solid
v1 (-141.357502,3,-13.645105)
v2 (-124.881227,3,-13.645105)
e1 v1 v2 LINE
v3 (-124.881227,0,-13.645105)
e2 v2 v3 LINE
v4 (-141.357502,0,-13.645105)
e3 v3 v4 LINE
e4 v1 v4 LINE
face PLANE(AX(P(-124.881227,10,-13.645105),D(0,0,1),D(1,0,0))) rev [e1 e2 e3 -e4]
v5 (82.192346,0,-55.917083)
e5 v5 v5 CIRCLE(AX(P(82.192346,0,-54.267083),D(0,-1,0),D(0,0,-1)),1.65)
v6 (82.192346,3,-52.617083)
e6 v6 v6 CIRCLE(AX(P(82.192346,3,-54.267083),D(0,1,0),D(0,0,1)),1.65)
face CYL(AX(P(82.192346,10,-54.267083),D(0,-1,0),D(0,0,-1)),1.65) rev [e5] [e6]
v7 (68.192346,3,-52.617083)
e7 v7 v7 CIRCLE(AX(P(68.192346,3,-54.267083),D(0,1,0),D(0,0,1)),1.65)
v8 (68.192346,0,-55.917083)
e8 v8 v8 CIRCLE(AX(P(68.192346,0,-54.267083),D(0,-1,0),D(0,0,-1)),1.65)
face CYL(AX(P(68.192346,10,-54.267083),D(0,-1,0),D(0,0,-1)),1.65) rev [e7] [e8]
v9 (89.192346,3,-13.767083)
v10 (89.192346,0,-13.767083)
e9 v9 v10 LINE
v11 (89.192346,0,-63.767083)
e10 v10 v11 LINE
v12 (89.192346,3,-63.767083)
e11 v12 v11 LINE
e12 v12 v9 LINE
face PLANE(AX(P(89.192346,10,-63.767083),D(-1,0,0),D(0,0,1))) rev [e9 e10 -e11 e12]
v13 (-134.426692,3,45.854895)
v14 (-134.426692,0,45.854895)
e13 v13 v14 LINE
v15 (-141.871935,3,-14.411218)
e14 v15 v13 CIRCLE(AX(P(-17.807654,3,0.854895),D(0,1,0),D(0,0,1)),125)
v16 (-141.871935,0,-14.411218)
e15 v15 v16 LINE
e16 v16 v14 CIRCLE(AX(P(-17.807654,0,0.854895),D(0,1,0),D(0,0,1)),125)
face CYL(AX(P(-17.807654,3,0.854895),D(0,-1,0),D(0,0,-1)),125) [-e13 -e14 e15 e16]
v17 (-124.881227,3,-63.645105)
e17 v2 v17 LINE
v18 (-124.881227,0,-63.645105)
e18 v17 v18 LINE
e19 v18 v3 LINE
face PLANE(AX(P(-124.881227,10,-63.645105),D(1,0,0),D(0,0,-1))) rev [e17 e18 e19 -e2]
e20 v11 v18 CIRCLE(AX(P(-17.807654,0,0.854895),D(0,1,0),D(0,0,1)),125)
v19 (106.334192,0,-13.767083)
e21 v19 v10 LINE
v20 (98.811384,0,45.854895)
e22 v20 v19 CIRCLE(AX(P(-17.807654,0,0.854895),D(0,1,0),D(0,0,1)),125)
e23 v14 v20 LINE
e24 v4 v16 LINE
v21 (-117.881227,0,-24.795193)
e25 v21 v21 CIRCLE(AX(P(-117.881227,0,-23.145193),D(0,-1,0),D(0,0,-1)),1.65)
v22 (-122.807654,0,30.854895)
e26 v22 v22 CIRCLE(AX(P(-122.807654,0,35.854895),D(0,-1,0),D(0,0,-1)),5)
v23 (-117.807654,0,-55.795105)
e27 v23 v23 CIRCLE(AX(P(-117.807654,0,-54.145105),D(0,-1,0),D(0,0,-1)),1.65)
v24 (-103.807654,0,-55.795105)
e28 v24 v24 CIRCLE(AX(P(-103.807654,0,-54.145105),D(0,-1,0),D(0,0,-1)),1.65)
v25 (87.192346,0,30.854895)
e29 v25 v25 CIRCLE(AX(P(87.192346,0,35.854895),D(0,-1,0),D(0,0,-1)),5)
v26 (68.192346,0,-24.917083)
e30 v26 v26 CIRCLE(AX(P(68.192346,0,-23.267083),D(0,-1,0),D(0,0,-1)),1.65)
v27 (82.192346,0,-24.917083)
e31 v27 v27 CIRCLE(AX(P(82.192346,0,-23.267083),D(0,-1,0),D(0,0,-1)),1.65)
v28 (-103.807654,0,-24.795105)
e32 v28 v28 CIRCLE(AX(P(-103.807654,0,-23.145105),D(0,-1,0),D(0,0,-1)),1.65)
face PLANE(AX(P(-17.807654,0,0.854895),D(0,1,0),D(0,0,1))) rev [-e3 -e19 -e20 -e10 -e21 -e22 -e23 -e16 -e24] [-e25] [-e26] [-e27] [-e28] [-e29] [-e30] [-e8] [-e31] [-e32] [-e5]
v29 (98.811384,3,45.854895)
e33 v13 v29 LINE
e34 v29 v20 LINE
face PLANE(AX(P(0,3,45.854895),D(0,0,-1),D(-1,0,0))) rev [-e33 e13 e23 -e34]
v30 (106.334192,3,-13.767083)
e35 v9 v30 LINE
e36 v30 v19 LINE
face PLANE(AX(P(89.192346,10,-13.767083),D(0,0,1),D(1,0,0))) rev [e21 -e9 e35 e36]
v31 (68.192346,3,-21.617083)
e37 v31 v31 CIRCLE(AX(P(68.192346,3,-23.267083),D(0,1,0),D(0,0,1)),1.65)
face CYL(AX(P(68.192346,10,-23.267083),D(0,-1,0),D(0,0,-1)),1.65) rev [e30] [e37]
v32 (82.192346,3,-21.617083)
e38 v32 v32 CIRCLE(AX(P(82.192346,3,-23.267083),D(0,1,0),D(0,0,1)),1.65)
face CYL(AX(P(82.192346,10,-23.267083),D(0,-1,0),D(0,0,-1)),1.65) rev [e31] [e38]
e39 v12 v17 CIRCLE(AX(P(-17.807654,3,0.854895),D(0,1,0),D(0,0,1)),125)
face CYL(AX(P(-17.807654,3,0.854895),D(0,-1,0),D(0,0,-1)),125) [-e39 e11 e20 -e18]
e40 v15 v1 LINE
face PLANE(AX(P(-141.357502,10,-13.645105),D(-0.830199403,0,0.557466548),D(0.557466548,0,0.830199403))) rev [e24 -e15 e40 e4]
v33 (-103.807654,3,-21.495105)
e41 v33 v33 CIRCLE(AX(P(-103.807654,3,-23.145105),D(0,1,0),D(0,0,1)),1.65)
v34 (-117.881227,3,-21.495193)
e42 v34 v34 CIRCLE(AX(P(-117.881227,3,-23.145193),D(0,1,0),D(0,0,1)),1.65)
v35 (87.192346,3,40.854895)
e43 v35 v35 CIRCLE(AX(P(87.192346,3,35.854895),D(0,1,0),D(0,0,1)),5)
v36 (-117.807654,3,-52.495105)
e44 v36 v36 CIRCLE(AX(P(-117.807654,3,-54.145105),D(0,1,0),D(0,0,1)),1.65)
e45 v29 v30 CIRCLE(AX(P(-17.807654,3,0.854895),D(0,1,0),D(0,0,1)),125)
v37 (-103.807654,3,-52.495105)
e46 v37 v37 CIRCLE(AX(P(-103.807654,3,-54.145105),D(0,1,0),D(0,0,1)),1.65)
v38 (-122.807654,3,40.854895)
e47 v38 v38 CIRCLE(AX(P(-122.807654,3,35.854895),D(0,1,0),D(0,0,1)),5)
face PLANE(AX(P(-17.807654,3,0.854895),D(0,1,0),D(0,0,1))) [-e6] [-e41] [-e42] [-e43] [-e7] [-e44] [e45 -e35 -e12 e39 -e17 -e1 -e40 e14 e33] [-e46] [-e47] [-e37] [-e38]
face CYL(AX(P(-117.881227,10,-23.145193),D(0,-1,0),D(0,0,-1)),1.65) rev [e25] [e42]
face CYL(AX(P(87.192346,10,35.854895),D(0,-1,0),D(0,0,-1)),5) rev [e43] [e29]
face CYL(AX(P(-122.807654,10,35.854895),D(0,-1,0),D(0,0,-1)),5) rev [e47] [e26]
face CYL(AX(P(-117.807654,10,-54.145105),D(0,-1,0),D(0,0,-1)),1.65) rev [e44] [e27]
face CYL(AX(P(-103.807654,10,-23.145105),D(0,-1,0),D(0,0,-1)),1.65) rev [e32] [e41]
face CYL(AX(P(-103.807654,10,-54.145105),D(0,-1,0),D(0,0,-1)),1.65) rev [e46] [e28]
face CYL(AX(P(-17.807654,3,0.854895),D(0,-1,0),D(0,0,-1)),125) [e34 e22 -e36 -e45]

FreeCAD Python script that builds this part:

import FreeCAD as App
import Part
import Sketcher
from FreeCAD import Vector


def add_polygon(sketch, points):
    """Adds a closed chain of lines whose ends are joined by coincident constraints."""
    first, n = sketch.GeometryCount, len(points)
    for a, b in zip(points, points[1:] + points[:1]):
        sketch.addGeometry(Part.LineSegment(App.Vector(*a, 0), App.Vector(*b, 0)), False)
    for i in range(n):
        sketch.addConstraint(Sketcher.Constraint("Coincident", first + i, 2, first + (i + 1) % n, 1))

doc = App.newDocument("Part")
body = doc.addObject("PartDesign::Body", "Body")

# Sketch on XZ plane
sketch1 = doc.addObject("Sketcher::SketchObject", "Sketch")
body.addObject(sketch1)
sketch1.AttachmentSupport = (doc.XZ_Plane, [""])
sketch1.MapMode = "FlatFace"
sketch1.addGeometry(Part.Circle(Vector(-17.807654, 0.854895, 0), Vector(0, 0, 1), 125), False)
sketch1.addConstraint([
    Sketcher.Constraint("Diameter", 0, 250.0),
    Sketcher.Constraint("DistanceX", 0, 3, -1, 1, 17.807654),
    Sketcher.Constraint("DistanceY", -1, 1, 0, 3, 0.854895),
])
pad1 = doc.addObject("PartDesign::Pad", "Pad")
body.addObject(pad1)
pad1.Profile = sketch1
pad1.Length = 3
pad1.Reversed = True

# Sketch on XZ plane
sketch2 = doc.addObject("Sketcher::SketchObject", "Sketch001")
body.addObject(sketch2)
sketch2.AttachmentSupport = (doc.XZ_Plane, [""])
sketch2.MapMode = "FlatFace"
add_polygon(sketch2, [(-735.289652, 45.854895), (699.674345, 45.854895), (699.674345, 1247.580815), (-735.289652, 1247.580815)])  # lines 0-3
sketch2.addConstraint([
    Sketcher.Constraint("Horizontal", 0),
    Sketcher.Constraint("Vertical", 1),
    Sketcher.Constraint("Horizontal", 2),
    Sketcher.Constraint("Vertical", 3),
    Sketcher.Constraint("DistanceY", 1, 1, 1, 2, 1201.725921),
    Sketcher.Constraint("DistanceX", 0, 1, 0, 2, 1434.963996),
    Sketcher.Constraint("DistanceX", 2, 2, -1, 1, 735.289652),
    Sketcher.Constraint("DistanceY", -1, 1, 0, 2, 45.854895),
])
pocket1 = doc.addObject("PartDesign::Pocket", "Pocket")
body.addObject(pocket1)
pocket1.Profile = sketch2
pocket1.Length = 3

# Sketch on XZ plane
sketch3 = doc.addObject("Sketcher::SketchObject", "Sketch002")
body.addObject(sketch3)
sketch3.AttachmentSupport = (doc.XZ_Plane, [""])
sketch3.MapMode = "FlatFace"
sketch3.addGeometry(Part.Circle(Vector(-117.807654, -54.145105, 0), Vector(0, 0, 1), 1.65), False)  # 0
sketch3.addGeometry(Part.Circle(Vector(-117.881227, -23.145193, 0), Vector(0, 0, 1), 1.65), False)  # 1
sketch3.addGeometry(Part.Circle(Vector(-103.807654, -54.145105, 0), Vector(0, 0, 1), 1.65), False)  # 2
sketch3.addGeometry(Part.Circle(Vector(-103.807654, -23.145105, 0), Vector(0, 0, 1), 1.65), False)  # 3
sketch3.addGeometry(Part.Circle(Vector(68.192346, -54.267083, 0), Vector(0, 0, 1), 1.65), False)  # 4
sketch3.addGeometry(Part.Circle(Vector(82.192346, -54.267083, 0), Vector(0, 0, 1), 1.65), False)  # 5
sketch3.addGeometry(Part.Circle(Vector(82.192346, -23.267083, 0), Vector(0, 0, 1), 1.65), False)  # 6
sketch3.addGeometry(Part.Circle(Vector(68.192346, -23.267083, 0), Vector(0, 0, 1), 1.65), False)  # 7
sketch3.addGeometry(Part.Circle(Vector(-122.807654, 35.854895, 0), Vector(0, 0, 1), 5), False)  # 8
sketch3.addGeometry(Part.Circle(Vector(87.192346, 35.854895, 0), Vector(0, 0, 1), 5), False)  # 9
add_polygon(sketch3, [(-124.881227, -63.645105), (-124.881227, -13.645105), (-141.357502, -13.645105), (-159.377607, -40.481299)])  # lines 10-13
add_polygon(sketch3, [(89.192346, -13.767083), (89.192346, -63.767083), (114.079844, -54.596316), (106.334192, -13.767083)])  # lines 14-17
sketch3.addConstraint([
    Sketcher.Constraint("Vertical", 10),
    Sketcher.Constraint("Horizontal", 11),
    Sketcher.Constraint("Vertical", 14),
    Sketcher.Constraint("Horizontal", 17),
    Sketcher.Constraint("Equal", 0, 1),
    Sketcher.Constraint("Equal", 1, 2),
    Sketcher.Constraint("Equal", 2, 3),
    Sketcher.Constraint("Equal", 3, 4),
    Sketcher.Constraint("Equal", 4, 5),
    Sketcher.Constraint("Equal", 5, 6),
    Sketcher.Constraint("Equal", 6, 7),
    Sketcher.Constraint("Equal", 8, 9),
    Sketcher.Constraint("Perpendicular", 12, 13),
    Sketcher.Constraint("Horizontal", 0, 3, 2, 3),
    Sketcher.Constraint("Horizontal", 4, 3, 5, 3),
    Sketcher.Constraint("Horizontal", 6, 3, 7, 3),
    Sketcher.Constraint("Horizontal", 8, 3, 9, 3),
    Sketcher.Constraint("Vertical", 2, 3, 3, 3),
    Sketcher.Constraint("Vertical", 5, 3, 6, 3),
    Sketcher.Constraint("Vertical", 4, 3, 7, 3),
    Sketcher.Constraint("Equal", 10, 14),
    Sketcher.Constraint("Diameter", 8, 10.0),
    Sketcher.Constraint("Diameter", 0, 3.3),
    Sketcher.Constraint("DistanceY", 10, 1, 10, 2, 50.0),
    Sketcher.Constraint("DistanceX", 0, 3, 2, 3, 14.0),
    Sketcher.Constraint("DistanceY", 2, 3, 3, 3, 31.0),
    Sketcher.Constraint("DistanceX", 2, 3, 4, 3, 172.0),
    Sketcher.Constraint("DistanceX", 4, 3, 5, 3, 14.0),
    Sketcher.Constraint("DistanceY", 5, 3, 6, 3, 31.0),
    Sketcher.Constraint("DistanceX", 8, 3, 3, 3, 19.0),
    Sketcher.Constraint("DistanceY", 3, 3, 8, 3, 59.0),
    Sketcher.Constraint("DistanceX", 6, 3, 9, 3, 5.0),
    Sketcher.Constraint("DistanceX", 10, 2, 1, 3, 7.0),
    Sketcher.Constraint("DistanceX", 5, 3, 14, 2, 7.0),
    Sketcher.Constraint("DistanceY", 3, 3, 10, 2, 9.5),
    Sketcher.Constraint("DistanceY", 14, 2, 5, 3, 9.5),
    Sketcher.Constraint("DistanceX", 11, 2, -1, 1, 141.357502),
    Sketcher.Constraint("DistanceY", 12, 2, -1, 1, 40.481299),
    Sketcher.Constraint("Distance", 13, 41.551921),
    Sketcher.Constraint("DistanceX", 11, 2, 11, 1, 16.476275),
    Sketcher.Constraint("DistanceX", 17, 2, 17, 1, 17.141845),
    Sketcher.Constraint("DistanceX", -1, 1, 16, 2, 106.334192),
    Sketcher.Constraint("DistanceY", 4, 3, 1, 3, 31.12189),
    Sketcher.Constraint("Distance", 15, 26.523395),
    Sketcher.Constraint("Distance", 16, 41.557447),
    Sketcher.Constraint("DistanceY", 1, 3, -1, 1, 23.145193),
])
pocket2 = doc.addObject("PartDesign::Pocket", "Pocket001")
body.addObject(pocket2)
pocket2.Profile = sketch3
pocket2.Length = 10

doc.recompute()
